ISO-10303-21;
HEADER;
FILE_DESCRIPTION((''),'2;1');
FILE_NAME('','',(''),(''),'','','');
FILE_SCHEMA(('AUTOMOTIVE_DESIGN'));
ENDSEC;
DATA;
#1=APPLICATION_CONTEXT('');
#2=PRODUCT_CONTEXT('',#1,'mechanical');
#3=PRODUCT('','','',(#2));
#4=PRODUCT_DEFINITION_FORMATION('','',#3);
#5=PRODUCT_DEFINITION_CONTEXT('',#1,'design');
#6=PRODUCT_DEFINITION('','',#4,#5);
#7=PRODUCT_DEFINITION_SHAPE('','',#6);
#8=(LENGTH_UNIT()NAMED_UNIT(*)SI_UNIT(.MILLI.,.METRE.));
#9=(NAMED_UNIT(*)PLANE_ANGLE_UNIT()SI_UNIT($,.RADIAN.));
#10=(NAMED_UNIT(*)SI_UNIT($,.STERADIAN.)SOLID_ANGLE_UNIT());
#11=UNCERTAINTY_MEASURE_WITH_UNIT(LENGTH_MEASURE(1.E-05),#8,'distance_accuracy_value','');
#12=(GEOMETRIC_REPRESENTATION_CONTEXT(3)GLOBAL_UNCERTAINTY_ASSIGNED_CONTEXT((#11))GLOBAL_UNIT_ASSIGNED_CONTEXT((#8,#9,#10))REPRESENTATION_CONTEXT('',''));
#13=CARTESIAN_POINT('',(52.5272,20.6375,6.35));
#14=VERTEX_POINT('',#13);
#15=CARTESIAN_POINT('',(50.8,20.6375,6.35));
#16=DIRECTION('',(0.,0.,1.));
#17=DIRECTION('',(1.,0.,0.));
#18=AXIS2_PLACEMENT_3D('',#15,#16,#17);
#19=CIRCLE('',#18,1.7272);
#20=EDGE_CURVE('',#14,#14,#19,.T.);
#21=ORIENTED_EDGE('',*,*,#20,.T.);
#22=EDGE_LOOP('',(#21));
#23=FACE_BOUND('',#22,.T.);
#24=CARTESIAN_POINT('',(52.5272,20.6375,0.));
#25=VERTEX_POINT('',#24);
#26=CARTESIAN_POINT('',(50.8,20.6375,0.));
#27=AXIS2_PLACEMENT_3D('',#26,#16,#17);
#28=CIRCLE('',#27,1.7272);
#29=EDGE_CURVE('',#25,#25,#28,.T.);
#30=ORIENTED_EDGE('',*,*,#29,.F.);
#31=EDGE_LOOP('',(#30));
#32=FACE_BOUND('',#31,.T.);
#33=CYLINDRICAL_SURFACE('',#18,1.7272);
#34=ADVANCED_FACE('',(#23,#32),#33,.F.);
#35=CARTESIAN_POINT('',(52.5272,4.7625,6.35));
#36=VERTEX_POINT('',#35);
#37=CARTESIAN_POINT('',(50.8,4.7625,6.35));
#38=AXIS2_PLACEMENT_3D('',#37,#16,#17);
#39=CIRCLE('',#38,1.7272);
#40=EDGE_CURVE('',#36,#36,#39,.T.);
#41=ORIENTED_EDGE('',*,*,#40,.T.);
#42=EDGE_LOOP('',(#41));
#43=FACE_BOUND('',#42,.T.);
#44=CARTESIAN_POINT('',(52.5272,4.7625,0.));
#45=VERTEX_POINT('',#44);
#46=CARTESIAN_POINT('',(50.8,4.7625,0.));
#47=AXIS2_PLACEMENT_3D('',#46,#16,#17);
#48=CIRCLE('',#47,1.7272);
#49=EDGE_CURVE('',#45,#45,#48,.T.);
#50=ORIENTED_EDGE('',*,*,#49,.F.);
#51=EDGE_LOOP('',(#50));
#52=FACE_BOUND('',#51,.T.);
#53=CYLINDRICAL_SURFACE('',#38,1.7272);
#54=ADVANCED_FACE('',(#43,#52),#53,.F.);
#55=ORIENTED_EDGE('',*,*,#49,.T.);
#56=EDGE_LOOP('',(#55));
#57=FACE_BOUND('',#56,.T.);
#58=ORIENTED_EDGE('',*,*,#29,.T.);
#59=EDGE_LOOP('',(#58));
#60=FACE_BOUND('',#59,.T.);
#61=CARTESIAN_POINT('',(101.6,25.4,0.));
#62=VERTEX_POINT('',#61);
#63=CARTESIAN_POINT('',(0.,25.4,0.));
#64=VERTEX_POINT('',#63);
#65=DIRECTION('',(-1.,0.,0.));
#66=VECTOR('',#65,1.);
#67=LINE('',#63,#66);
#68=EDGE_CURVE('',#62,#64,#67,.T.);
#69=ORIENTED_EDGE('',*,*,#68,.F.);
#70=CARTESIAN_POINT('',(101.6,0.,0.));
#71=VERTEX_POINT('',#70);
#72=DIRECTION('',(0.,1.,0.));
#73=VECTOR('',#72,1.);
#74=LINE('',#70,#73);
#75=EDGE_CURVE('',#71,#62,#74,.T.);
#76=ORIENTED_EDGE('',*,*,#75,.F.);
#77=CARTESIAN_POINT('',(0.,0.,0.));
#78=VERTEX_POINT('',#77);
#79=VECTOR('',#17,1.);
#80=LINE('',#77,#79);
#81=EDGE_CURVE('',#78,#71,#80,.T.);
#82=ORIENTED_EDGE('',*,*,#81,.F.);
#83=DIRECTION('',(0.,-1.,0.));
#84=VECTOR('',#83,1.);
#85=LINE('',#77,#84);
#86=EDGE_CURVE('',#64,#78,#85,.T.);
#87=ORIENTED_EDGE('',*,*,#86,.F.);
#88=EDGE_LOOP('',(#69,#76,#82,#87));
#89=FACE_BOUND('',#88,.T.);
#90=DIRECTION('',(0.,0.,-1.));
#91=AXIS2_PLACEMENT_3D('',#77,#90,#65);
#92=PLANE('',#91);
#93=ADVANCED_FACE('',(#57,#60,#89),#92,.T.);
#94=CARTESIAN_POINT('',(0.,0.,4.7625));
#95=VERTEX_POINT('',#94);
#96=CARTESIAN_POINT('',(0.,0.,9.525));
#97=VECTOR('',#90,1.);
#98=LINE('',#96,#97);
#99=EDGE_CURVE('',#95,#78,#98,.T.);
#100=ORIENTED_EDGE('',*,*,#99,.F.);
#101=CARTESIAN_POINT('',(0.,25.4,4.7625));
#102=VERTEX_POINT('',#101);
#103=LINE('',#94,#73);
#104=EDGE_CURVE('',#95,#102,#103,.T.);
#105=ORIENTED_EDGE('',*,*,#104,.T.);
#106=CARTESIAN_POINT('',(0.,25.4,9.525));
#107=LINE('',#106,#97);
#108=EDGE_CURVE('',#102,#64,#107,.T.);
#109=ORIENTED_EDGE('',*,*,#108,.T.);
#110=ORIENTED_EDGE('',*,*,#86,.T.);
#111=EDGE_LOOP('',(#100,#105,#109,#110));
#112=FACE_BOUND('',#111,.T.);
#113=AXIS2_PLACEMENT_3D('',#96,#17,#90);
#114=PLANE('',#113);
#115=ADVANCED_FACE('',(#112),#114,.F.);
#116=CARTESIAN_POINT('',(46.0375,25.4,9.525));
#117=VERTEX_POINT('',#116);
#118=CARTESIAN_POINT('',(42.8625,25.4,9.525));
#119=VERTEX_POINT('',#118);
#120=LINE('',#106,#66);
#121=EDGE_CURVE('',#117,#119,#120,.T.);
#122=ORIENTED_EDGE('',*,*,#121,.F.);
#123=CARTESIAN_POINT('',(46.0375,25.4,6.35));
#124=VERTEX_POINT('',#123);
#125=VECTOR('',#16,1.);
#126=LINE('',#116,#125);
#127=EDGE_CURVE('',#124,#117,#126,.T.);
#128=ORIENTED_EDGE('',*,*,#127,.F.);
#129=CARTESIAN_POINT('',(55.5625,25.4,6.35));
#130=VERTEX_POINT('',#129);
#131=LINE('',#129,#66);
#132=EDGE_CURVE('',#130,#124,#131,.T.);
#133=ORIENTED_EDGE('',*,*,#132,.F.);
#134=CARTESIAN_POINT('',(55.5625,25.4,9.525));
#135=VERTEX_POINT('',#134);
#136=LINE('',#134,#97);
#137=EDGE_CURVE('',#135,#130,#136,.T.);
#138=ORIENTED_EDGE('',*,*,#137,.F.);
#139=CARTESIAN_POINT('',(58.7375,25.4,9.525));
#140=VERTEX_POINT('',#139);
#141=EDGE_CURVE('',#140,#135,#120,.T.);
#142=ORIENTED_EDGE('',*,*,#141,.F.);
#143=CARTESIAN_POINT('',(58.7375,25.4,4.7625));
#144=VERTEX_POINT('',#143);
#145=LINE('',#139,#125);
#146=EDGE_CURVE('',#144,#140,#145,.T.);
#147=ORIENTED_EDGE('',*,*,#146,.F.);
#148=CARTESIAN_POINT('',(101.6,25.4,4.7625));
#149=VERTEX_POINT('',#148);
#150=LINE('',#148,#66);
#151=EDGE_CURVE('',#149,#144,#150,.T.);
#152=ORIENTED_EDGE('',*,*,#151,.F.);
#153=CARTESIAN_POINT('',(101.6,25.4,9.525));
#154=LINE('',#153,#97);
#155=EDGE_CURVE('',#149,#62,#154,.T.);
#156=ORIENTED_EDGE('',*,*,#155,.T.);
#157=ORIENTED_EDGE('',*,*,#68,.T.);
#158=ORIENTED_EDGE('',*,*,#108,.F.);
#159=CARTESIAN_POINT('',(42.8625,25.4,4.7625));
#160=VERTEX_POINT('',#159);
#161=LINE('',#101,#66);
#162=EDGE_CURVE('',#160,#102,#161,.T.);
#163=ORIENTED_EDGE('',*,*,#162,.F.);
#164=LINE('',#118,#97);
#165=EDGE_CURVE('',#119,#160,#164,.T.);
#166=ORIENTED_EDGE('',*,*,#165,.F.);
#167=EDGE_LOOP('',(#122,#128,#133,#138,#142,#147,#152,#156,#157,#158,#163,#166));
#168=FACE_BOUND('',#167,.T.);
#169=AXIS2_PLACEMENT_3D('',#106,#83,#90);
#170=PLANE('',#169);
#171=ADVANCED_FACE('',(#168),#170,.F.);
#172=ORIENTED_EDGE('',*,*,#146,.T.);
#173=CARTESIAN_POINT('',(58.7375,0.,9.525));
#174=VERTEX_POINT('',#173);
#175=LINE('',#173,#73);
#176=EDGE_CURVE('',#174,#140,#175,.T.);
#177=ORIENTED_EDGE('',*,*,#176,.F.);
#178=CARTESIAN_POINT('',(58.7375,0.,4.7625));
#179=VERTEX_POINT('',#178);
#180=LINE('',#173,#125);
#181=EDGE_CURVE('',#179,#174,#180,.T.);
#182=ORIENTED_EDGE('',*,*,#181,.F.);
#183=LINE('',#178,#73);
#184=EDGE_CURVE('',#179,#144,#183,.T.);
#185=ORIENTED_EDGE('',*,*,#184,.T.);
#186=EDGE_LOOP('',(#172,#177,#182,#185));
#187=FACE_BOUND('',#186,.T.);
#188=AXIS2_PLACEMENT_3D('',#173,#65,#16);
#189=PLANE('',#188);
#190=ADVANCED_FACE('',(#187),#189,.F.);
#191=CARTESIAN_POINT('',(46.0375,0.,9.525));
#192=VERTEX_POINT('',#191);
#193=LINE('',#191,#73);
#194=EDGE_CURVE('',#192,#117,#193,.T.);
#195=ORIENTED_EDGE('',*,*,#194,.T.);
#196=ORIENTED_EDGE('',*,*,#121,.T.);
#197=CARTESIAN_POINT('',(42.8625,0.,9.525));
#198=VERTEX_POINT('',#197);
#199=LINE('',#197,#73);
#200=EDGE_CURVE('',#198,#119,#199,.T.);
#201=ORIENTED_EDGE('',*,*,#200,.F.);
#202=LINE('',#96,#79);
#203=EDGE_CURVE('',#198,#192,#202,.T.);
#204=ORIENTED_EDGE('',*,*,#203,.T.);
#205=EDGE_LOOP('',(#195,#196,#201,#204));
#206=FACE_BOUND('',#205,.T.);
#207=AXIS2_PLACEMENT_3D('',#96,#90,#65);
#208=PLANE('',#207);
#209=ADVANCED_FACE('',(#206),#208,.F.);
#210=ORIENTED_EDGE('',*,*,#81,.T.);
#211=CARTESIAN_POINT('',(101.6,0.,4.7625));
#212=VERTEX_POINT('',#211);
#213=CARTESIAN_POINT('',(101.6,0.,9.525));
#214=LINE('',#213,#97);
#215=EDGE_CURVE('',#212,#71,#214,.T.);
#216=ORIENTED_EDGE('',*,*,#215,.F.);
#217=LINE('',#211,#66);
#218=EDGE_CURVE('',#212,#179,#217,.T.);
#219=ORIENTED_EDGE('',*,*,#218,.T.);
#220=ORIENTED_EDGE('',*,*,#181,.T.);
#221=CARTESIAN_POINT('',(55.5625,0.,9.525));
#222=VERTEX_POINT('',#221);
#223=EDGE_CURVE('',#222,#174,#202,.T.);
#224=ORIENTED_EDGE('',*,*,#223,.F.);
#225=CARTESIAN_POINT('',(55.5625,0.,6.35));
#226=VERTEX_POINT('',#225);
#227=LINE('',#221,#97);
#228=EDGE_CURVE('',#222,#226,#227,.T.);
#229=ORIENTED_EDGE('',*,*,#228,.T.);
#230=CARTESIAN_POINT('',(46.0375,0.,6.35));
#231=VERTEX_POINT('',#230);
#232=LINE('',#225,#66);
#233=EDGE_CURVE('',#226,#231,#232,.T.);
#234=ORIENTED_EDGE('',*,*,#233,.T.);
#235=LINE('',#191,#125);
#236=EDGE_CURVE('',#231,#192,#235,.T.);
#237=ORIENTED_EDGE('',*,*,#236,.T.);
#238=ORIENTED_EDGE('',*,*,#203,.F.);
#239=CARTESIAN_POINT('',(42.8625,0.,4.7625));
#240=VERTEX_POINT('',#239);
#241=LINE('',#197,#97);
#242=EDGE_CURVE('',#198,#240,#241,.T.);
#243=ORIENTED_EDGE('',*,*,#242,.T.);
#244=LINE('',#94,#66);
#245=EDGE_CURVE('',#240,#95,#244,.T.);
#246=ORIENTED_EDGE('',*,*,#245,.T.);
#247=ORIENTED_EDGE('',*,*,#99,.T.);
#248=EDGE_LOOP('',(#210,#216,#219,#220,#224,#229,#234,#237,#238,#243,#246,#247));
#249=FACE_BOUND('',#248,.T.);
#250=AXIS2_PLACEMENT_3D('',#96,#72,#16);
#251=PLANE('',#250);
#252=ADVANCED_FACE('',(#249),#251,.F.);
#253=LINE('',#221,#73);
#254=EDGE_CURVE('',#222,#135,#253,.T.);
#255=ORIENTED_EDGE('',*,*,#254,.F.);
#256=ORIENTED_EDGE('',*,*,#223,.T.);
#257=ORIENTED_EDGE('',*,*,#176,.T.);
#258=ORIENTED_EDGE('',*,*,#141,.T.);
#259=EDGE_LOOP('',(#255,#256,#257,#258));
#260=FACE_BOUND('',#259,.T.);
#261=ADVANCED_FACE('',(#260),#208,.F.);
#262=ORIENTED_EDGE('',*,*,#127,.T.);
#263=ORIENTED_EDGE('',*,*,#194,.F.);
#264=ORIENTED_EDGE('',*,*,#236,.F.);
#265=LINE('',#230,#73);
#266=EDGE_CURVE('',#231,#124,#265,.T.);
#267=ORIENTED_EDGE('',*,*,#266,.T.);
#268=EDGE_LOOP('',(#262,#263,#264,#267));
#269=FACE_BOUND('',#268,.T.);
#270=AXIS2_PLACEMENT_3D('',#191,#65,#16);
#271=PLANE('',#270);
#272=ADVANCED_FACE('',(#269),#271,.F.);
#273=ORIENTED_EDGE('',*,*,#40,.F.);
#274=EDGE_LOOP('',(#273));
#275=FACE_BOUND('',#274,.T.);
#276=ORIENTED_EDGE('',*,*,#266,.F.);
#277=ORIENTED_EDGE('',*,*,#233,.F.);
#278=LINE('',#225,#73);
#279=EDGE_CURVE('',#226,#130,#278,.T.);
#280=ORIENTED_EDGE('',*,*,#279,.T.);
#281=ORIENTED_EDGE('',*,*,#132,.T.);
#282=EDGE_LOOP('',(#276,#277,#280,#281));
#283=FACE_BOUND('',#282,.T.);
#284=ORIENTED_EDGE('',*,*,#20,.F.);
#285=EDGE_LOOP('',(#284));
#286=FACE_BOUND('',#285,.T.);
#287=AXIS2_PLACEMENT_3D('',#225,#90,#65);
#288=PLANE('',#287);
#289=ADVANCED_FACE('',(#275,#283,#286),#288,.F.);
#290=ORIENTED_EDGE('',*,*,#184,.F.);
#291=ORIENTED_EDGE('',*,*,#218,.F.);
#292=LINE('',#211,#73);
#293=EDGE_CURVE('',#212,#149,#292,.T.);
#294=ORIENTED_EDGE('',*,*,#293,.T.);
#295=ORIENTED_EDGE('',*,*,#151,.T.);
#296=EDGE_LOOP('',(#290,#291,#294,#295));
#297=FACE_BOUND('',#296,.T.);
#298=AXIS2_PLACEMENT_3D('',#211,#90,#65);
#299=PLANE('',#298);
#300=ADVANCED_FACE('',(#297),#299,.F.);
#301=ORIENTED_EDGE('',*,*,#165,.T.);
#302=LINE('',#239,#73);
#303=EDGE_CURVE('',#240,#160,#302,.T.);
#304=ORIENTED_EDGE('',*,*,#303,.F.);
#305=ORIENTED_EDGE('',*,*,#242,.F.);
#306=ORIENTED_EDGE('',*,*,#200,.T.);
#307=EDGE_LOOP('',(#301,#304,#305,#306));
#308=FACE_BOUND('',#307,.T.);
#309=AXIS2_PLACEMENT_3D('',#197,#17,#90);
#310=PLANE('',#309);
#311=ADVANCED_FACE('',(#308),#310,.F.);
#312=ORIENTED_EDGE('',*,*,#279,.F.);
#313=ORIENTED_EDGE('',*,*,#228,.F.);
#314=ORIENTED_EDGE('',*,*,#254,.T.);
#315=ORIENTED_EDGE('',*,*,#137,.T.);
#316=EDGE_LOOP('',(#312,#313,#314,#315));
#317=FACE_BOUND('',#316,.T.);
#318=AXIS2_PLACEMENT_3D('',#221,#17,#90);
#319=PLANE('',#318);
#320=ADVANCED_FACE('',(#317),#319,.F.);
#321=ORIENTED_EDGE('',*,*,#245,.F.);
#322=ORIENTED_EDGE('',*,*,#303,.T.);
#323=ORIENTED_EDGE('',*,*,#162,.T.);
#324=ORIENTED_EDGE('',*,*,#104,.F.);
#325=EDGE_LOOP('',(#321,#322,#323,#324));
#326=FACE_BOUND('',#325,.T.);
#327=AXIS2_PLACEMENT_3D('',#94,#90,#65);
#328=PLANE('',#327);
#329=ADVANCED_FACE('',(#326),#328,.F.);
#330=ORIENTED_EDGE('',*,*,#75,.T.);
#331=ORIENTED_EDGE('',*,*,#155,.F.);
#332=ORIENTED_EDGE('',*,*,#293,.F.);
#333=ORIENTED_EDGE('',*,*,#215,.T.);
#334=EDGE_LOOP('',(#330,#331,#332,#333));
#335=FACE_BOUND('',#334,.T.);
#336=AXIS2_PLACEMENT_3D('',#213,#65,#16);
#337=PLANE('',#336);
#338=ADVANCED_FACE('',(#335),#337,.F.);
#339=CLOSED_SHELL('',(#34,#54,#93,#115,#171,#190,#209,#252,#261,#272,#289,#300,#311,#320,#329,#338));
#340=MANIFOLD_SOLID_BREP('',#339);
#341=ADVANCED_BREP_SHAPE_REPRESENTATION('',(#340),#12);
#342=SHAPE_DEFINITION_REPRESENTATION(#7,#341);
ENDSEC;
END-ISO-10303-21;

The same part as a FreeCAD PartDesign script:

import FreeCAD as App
import Part
import Sketcher
from FreeCAD import Vector
Q = App.Units.Quantity


def add_polygon(sketch, points):
    """Adds a closed chain of lines whose ends are joined by coincident constraints."""
    first, n = sketch.GeometryCount, len(points)
    for a, b in zip(points, points[1:] + points[:1]):
        sketch.addGeometry(Part.LineSegment(App.Vector(*a, 0), App.Vector(*b, 0)), False)
    for i in range(n):
        sketch.addConstraint(Sketcher.Constraint("Coincident", first + i, 2, first + (i + 1) % n, 1))

doc = App.newDocument("Part")
body = doc.addObject("PartDesign::Body", "Body")

sketch1 = body.newObject("Sketcher::SketchObject", "Sketch")
sketch1.AttachmentSupport = (doc.getObject("XY_Plane"), [""])
sketch1.MapMode = "FlatFace"
add_polygon(sketch1, [(0, 25.4), (0, 0), (101.6, 0), (101.6, 25.4)])
sketch1.addConstraint(Sketcher.Constraint("Vertical", 0))
sketch1.addConstraint(Sketcher.Constraint("Horizontal", 1))
sketch1.addConstraint(Sketcher.Constraint("Vertical", 2))
sketch1.addConstraint(Sketcher.Constraint("Horizontal", 3))
sketch1.addConstraint(Sketcher.Constraint("Coincident", 0, 2, -1, 1))
sketch1.addConstraint(Sketcher.Constraint("DistanceX", 1, 1, 1, 2, Q("4 in")))
sketch1.addConstraint(Sketcher.Constraint("DistanceY", 0, 2, 0, 1, Q("1 in")))
pad1 = body.newObject("PartDesign::Pad", "Pad")
pad1.Profile = sketch1
pad1.Length = Q("0.375 in")

sketch2 = body.newObject("Sketcher::SketchObject", "Sketch001")
sketch2.AttachmentSupport = (doc.getObject("XZ_Plane"), [""])
sketch2.MapMode = "FlatFace"
sketch2.AttachmentOffset = App.Placement(Vector(0, 0, -1 * 25.4), App.Rotation())
add_polygon(sketch2, [(46.0375, 6.35), (46.0375, 9.525), (55.5625, 9.525), (55.5625, 6.35)])
add_polygon(sketch2, [(0, 4.7625), (0, 9.525), (42.8625, 9.525), (42.8625, 4.7625)])
add_polygon(sketch2, [(58.7375, 4.7625), (58.7375, 9.525), (101.6, 9.525), (101.6, 4.7625)])
sketch2.addConstraint(Sketcher.Constraint("Vertical", 0))
sketch2.addConstraint(Sketcher.Constraint("Horizontal", 1))
sketch2.addConstraint(Sketcher.Constraint("Vertical", 2))
sketch2.addConstraint(Sketcher.Constraint("Horizontal", 3))
sketch2.addConstraint(Sketcher.Constraint("Vertical", 4))
sketch2.addConstraint(Sketcher.Constraint("Horizontal", 5))
sketch2.addConstraint(Sketcher.Constraint("Vertical", 6))
sketch2.addConstraint(Sketcher.Constraint("Horizontal", 7))
sketch2.addConstraint(Sketcher.Constraint("Vertical", 8))
sketch2.addConstraint(Sketcher.Constraint("Horizontal", 9))
sketch2.addConstraint(Sketcher.Constraint("Vertical", 10))
sketch2.addConstraint(Sketcher.Constraint("Horizontal", 11))
sketch2.addConstraint(Sketcher.Constraint("PointOnObject", 4, 2, -2))
sketch2.addConstraint(Sketcher.Constraint("Horizontal", 1, 2, 4, 2))
sketch2.addConstraint(Sketcher.Constraint("Horizontal", 5, 2, 8, 2))
sketch2.addConstraint(Sketcher.Constraint("Horizontal", 7, 2, 10, 2))
sketch2.addConstraint(Sketcher.Constraint("Equal", 7, 9))
sketch2.addConstraint(Sketcher.Constraint("DistanceX", -1, 1, 9, 2, Q("4 in")))
sketch2.addConstraint(Sketcher.Constraint("DistanceX", 5, 2, 1, 2, Q("0.5 in")))
sketch2.addConstraint(Sketcher.Constraint("DistanceX", 0, 2, 8, 2, Q("0.5 in")))
sketch2.addConstraint(Sketcher.Constraint("DistanceX", 1, 1, 1, 2, Q("0.375 in")))
sketch2.addConstraint(Sketcher.Constraint("DistanceY", 0, 1, 0, 2, Q("0.125 in")))
sketch2.addConstraint(Sketcher.Constraint("DistanceY", 4, 1, 4, 2, Q("0.1875 in")))
sketch2.addConstraint(Sketcher.Constraint("DistanceY", -1, 1, 2, 2, Q("0.25 in")))
pocket1 = body.newObject("PartDesign::Pocket", "Pocket")
pocket1.Profile = sketch2
pocket1.Type = "ThroughAll"
pocket1.Reversed = True

sketch3 = body.newObject("Sketcher::SketchObject", "Sketch002")
sketch3.AttachmentSupport = (doc.getObject("XY_Plane"), [""])
sketch3.MapMode = "FlatFace"
sketch3.AttachmentOffset = App.Placement(Vector(0, 0, 0.25 * 25.4), App.Rotation())
sketch3.addGeometry(Part.Circle(Vector(50.8, 4.7625, 0), Vector(0, 0, 1), 1.7272), False)
sketch3.addGeometry(Part.Circle(Vector(50.8, 20.6375, 0), Vector(0, 0, 1), 1.7272), False)
sketch3.addConstraint(Sketcher.Constraint("Equal", 0, 1))
sketch3.addConstraint(Sketcher.Constraint("Vertical", 0, 3, 1, 3))
sketch3.addConstraint(Sketcher.Constraint("Diameter", 0, Q("0.136 in")))
sketch3.addConstraint(Sketcher.Constraint("DistanceX", -1, 1, 0, 3, Q("2 in")))
sketch3.addConstraint(Sketcher.Constraint("DistanceY", -1, 1, 0, 3, Q("0.1875 in")))
sketch3.addConstraint(Sketcher.Constraint("DistanceY", -1, 1, 1, 3, Q("0.8125 in")))
doc.recompute()
hole = body.newObject("PartDesign::Hole", "Hole")
hole.Profile = sketch3
hole.ThreadType = "None"
hole.Diameter = Q("0.136 in")
hole.DepthType = "ThroughAll"

doc.recompute()
